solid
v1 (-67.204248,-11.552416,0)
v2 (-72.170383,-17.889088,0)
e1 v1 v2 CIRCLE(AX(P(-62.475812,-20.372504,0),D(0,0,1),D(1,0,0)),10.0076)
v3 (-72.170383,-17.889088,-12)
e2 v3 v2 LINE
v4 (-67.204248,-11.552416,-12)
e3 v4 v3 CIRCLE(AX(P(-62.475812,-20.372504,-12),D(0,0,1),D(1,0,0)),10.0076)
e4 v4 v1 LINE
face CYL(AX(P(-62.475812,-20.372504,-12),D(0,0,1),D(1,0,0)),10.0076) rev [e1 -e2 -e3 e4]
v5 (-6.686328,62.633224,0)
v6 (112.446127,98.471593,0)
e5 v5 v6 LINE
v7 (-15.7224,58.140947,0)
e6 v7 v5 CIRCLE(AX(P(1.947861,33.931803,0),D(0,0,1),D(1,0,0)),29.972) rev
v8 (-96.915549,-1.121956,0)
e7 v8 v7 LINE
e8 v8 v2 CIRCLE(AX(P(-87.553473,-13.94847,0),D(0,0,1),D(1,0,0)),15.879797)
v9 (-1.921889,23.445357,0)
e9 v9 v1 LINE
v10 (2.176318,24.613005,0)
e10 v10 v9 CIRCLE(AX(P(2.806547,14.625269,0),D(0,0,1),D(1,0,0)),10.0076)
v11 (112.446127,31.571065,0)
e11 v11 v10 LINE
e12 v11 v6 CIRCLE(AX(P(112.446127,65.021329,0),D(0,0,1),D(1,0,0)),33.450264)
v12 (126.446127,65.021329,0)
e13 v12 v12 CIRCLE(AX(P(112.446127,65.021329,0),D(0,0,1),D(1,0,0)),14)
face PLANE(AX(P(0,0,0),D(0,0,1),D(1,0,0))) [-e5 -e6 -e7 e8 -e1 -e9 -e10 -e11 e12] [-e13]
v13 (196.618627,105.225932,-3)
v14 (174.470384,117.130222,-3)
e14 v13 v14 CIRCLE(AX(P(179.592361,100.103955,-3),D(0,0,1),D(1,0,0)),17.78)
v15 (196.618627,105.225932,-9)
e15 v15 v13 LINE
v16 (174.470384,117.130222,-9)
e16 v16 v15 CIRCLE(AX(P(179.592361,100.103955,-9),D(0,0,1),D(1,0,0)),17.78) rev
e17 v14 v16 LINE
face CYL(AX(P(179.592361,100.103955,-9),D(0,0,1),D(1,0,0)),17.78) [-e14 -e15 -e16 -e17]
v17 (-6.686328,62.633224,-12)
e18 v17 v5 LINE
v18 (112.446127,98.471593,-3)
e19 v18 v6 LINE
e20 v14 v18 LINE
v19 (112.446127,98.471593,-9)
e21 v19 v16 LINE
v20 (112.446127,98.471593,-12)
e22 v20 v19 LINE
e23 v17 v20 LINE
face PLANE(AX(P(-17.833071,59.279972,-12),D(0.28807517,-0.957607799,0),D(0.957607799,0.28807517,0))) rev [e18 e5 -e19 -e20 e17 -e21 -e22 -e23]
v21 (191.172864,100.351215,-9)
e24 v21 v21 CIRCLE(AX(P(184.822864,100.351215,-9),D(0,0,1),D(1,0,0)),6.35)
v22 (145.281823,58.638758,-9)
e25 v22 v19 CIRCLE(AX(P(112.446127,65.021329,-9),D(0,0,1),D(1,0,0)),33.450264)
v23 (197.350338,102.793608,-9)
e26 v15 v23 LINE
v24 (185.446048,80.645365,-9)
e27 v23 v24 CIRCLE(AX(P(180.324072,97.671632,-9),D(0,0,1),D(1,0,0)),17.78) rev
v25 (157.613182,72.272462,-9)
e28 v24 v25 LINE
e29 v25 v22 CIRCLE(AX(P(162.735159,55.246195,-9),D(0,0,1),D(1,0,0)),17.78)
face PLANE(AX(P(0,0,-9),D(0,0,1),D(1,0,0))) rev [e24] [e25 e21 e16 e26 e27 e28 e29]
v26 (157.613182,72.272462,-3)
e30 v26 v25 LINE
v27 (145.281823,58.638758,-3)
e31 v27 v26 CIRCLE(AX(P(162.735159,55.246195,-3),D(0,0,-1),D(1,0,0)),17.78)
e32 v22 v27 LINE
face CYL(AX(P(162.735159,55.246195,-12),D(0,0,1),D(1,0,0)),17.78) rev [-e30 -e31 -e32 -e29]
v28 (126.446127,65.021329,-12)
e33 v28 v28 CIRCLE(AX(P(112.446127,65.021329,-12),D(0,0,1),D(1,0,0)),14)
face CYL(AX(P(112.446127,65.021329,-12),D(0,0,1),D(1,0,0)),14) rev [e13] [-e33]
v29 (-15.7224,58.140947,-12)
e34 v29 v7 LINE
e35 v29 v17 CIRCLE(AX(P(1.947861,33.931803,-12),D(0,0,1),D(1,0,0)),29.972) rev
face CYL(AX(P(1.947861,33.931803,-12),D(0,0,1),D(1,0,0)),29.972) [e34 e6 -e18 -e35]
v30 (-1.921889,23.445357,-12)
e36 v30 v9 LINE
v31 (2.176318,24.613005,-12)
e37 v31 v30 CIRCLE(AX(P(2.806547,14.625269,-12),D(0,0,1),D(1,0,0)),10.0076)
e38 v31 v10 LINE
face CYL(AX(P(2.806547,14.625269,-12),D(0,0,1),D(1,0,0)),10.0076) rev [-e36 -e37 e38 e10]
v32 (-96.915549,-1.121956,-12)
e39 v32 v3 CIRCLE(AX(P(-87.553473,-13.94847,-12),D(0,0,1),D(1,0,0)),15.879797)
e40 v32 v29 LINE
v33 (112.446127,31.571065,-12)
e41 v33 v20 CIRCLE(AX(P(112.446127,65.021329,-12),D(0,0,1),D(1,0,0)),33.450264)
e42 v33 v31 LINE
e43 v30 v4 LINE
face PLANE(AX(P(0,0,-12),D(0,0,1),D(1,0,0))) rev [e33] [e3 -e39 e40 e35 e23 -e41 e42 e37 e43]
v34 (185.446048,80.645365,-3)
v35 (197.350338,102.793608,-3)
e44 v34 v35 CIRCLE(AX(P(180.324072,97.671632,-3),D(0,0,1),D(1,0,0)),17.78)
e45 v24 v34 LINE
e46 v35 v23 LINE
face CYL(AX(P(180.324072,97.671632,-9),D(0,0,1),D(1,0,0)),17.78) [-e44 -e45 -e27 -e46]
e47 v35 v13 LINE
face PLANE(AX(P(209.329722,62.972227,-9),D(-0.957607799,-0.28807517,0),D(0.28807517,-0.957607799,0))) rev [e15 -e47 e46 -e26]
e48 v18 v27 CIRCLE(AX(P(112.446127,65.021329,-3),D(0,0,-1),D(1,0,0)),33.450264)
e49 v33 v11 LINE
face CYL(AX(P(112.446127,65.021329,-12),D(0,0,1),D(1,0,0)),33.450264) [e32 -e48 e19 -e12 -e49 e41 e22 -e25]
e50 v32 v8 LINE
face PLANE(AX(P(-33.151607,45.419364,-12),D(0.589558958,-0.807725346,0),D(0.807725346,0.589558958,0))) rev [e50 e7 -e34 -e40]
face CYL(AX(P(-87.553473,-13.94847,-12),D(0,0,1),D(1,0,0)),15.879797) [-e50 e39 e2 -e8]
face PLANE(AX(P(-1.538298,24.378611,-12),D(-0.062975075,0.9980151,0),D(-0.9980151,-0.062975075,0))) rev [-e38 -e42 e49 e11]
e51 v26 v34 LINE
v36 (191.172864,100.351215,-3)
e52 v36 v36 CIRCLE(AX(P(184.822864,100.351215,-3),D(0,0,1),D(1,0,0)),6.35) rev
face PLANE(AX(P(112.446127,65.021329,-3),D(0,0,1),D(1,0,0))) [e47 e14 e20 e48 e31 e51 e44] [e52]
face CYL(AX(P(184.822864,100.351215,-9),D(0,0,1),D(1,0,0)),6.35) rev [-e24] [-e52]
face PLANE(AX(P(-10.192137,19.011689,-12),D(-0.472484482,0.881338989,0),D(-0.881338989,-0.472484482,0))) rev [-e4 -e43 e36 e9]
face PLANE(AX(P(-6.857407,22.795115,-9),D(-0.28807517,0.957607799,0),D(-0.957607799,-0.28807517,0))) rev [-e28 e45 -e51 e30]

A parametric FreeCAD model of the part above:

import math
import FreeCAD as App
import Part
import Sketcher
Q = App.Units.Quantity


def edges_at(feature, points):
    """Names of the edges that pass closest to the given points."""
    edges = feature.Shape.Edges
    near = lambda p: min(range(len(edges)), key=lambda i: edges[i].distToShape(Part.Vertex(*p))[0])
    return sorted({f"Edge{near(p) + 1}" for p in points})

doc = App.newDocument("Part")
body = doc.addObject("PartDesign::Body", "Body")

# Sketch on XY plane
sketch1 = body.newObject("Sketcher::SketchObject", "Sketch")
sketch1.AttachmentSupport = (doc.getObject("XY_Plane"), [""])
sketch1.MapMode = "FlatFace"
sketch1.addGeometry([
    Part.LineSegment(App.Vector(-15.7, 58.1, 0), App.Vector(-96.9, -1.1, 0)),  # 0
    Part.ArcOfCircle(Part.Circle(App.Vector(-87.6, -13.9, 0), App.Vector(0, 0, 1), 15.9), math.radians(126), math.radians(346)),  # 1
    Part.ArcOfCircle(Part.Circle(App.Vector(-62.5, -20.4, 0), App.Vector(0, 0, 1), 10), math.radians(118), math.radians(166)),  # 2
    Part.LineSegment(App.Vector(-67.2, -11.6, 0), App.Vector(-1.9, 23.4, 0)),  # 3
    Part.ArcOfCircle(Part.Circle(App.Vector(2.8, 14.6, 0), App.Vector(0, 0, 1), 10), math.radians(94), math.radians(118)),  # 4
    Part.LineSegment(App.Vector(2.2, 24.6, 0), App.Vector(112.4, 31.6, 0)),  # 5
    Part.ArcOfCircle(Part.Circle(App.Vector(112.4, 65, 0), App.Vector(0, 0, 1), 33.5), math.radians(-90), math.radians(90)),  # 6
    Part.LineSegment(App.Vector(112.4, 98.5, 0), App.Vector(-6.7, 62.6, 0)),  # 7
    Part.ArcOfCircle(Part.Circle(App.Vector(1.9, 33.9, 0), App.Vector(0, 0, 1), 30), math.radians(106.74), math.radians(126.13)),  # 8
    Part.Circle(App.Vector(112.4, 65, 0), App.Vector(0, 0, 1), 14),  # 9
], False)
sketch1.addConstraint([
    Sketcher.Constraint("Tangent", 0, 2, 1, 1),
    Sketcher.Constraint("Tangent", 1, 2, 2, 2),
    Sketcher.Constraint("Tangent", 2, 1, 3, 1),
    Sketcher.Constraint("Tangent", 3, 2, 4, 2),
    Sketcher.Constraint("Tangent", 4, 1, 5, 1),
    Sketcher.Constraint("Coincident", 5, 2, 6, 1),
    Sketcher.Constraint("Coincident", 6, 2, 7, 1),
    Sketcher.Constraint("Tangent", 7, 2, 8, 1),
    Sketcher.Constraint("Tangent", 8, 2, 0, 1),
    Sketcher.Constraint("Coincident", 9, 3, 6, 3),
    Sketcher.Constraint("Equal", 2, 4),
    Sketcher.Constraint("Vertical", 9, 3, 5, 2),
    Sketcher.Constraint("Vertical", 5, 2, 6, 2),
    Sketcher.Constraint("Radius", 8, Q("1.18 in")),
    Sketcher.Constraint("Radius", 2, Q("0.394 in")),
    Sketcher.Constraint("Diameter", 9, Q("28 mm")),
    Sketcher.Constraint("DistanceX", 1, 3, 6, 3, Q("7.874 in")),
    Sketcher.Constraint("Radius", 1, Q("15.879797 mm")),
    Sketcher.Constraint("Radius", 6, Q("33.450264 mm")),
    Sketcher.Constraint("DistanceX", 8, 2, -1, 1, Q("15.7224 mm")),
    Sketcher.Constraint("DistanceY", 1, 3, 6, 3, Q("78.969799 mm")),
    Sketcher.Constraint("DistanceX", 0, 2, 2, 1, Q("29.711302 mm")),
    Sketcher.Constraint("DistanceY", 4, 1, 8, 3, Q("9.318798 mm")),
    Sketcher.Constraint("Distance", 0, Q("100.52074 mm")),
    Sketcher.Constraint("Distance", 5, Q("110.489119 mm")),
    Sketcher.Constraint("DistanceY", 1, 3, -1, 1, Q("13.94847 mm")),
    Sketcher.Constraint("DistanceX", 2, 3, -1, 1, Q("62.475812 mm")),
])
pad1 = body.newObject("PartDesign::Pad", "Pad")
pad1.Profile = sketch1
pad1.Length = 12
pad1.Reversed = True

# Sketch on XY plane
sketch2 = body.newObject("Sketcher::SketchObject", "Sketch001")
sketch2.AttachmentSupport = (doc.getObject("XY_Plane"), [""])
sketch2.MapMode = "FlatFace"
sketch2.addGeometry([
    Part.LineSegment(App.Vector(179, 119, 0), App.Vector(112, 98, 0)),  # 0
    Part.ArcOfCircle(Part.Circle(App.Vector(112, 65, 0), App.Vector(0, 0, 1), 33), math.radians(6), math.radians(90)),  # 1
    Part.LineSegment(App.Vector(146, 69, 0), App.Vector(190, 82, 0)),  # 2
    Part.LineSegment(App.Vector(190, 82, 0), App.Vector(202, 86, 0)),  # 3
    Part.LineSegment(App.Vector(202, 86, 0), App.Vector(191, 122, 0)),  # 4
    Part.LineSegment(App.Vector(191, 122, 0), App.Vector(179, 119, 0)),  # 5
    Part.ArcOfCircle(Part.Circle(App.Vector(185, 100, 0), App.Vector(0, 0, 1), 6), math.radians(107), math.radians(287)),  # 6
    Part.ArcOfCircle(Part.Circle(App.Vector(185, 100, 0), App.Vector(0, 0, 1), 6), math.radians(0), math.radians(107)),  # 7
    Part.ArcOfCircle(Part.Circle(App.Vector(185, 100, 0), App.Vector(0, 0, 1), 6), math.radians(-73), math.radians(0)),  # 8
], False)
sketch2.addConstraint([
    Sketcher.Constraint("Coincident", 0, 2, 1, 2),
    Sketcher.Constraint("Coincident", 1, 1, 2, 1),
    Sketcher.Constraint("Coincident", 2, 2, 3, 1),
    Sketcher.Constraint("Coincident", 3, 2, 4, 1),
    Sketcher.Constraint("Coincident", 4, 2, 5, 1),
    Sketcher.Constraint("Coincident", 5, 2, 0, 1),
    Sketcher.Constraint("Tangent", 6, 1, 7, 2),
    Sketcher.Constraint("Tangent", 7, 1, 8, 2),
    Sketcher.Constraint("Tangent", 8, 1, 6, 2),
    Sketcher.Constraint("Parallel", 0, 2),
    Sketcher.Constraint("Parallel", 2, 3),
    Sketcher.Constraint("Perpendicular", 3, 4),
    Sketcher.Constraint("Perpendicular", 4, 5),
    Sketcher.Constraint("Horizontal", 8, 3, 7, 1),
    Sketcher.Constraint("Vertical", 1, 3, 0, 2),
    Sketcher.Constraint("Equal", 3, 5),
    Sketcher.Constraint("Radius", 6, Q("0.25 in")),
    Sketcher.Constraint("Distance", 3, Q("0.5 in")),
    Sketcher.Constraint("Distance", 4, Q("1.5 in")),
    Sketcher.Constraint("Distance", 0, Q("2.75 in")),
    Sketcher.Constraint("Radius", 1, Q("33.450264 mm")),
    Sketcher.Constraint("DistanceY", -1, 1, 4, 2, Q("122.252199 mm")),
    Sketcher.Constraint("DistanceY", 1, 1, 6, 3, Q("31.6641 mm")),
    Sketcher.Constraint("DistanceY", -1, 1, 1, 3, Q("65.021329 mm")),
    Sketcher.Constraint("DistanceX", -1, 1, 1, 1, Q("145.694919 mm")),
    Sketcher.Constraint("DistanceX", -1, 1, 8, 1, Q("186.652141 mm")),
    Sketcher.Constraint("DistanceX", 8, 3, 2, 2, Q("5.487832 mm")),
    Sketcher.Constraint("DistanceY", 6, 3, 6, 1, Q("6.08081 mm")),
])
pad2 = body.newObject("PartDesign::Pad", "Pad001")
pad2.Profile = sketch2
pad2.Length = 9
pad2.Reversed = True
doc.recompute()

fillet = body.newObject("PartDesign::Fillet", "Fillet")
fillet.Base = (pad2, edges_at(pad2, [(191.497, 122.252, -4.5), (202.472, 85.767, -4.5), (145.695, 68.687, -4.5)]))
fillet.Radius = Q("0.7 in")

# Sketch on XY plane
sketch3 = body.newObject("Sketcher::SketchObject", "Sketch002")
sketch3.AttachmentSupport = (doc.getObject("XY_Plane"), [""])
sketch3.MapMode = "FlatFace"
sketch3.AttachmentOffset = App.Placement(App.Vector(0, 0, -3), App.Rotation())
sketch3.addGeometry([
    Part.LineSegment(App.Vector(174.5, 117.1, 0), App.Vector(112.4, 98.5, 0)),  # 0
    Part.ArcOfCircle(Part.Circle(App.Vector(112.4, 65, 0), App.Vector(0, 0, 1), 33.5), math.radians(-11), math.radians(90)),  # 1
    Part.ArcOfCircle(Part.Circle(App.Vector(162.7, 55.2, 0), App.Vector(0, 0, 1), 17.8), math.radians(107), math.radians(169)),  # 2
    Part.LineSegment(App.Vector(157.6, 72.3, 0), App.Vector(185.4, 80.6, 0)),  # 3
    Part.ArcOfCircle(Part.Circle(App.Vector(180.3, 97.7, 0), App.Vector(0, 0, 1), 17.8), math.radians(-73), math.radians(17)),  # 4
    Part.LineSegment(App.Vector(197.4, 102.8, 0), App.Vector(196.6, 105.2, 0)),  # 5
    Part.ArcOfCircle(Part.Circle(App.Vector(179.6, 100.1, 0), App.Vector(0, 0, 1), 17.8), math.radians(17), math.radians(107)),  # 6
], False)
sketch3.addConstraint([
    Sketcher.Constraint("Coincident", 0, 2, 1, 2),
    Sketcher.Constraint("Tangent", 1, 1, 2, 2),
    Sketcher.Constraint("Tangent", 2, 1, 3, 1),
    Sketcher.Constraint("Tangent", 3, 2, 4, 1),
    Sketcher.Constraint("Tangent", 4, 2, 5, 1),
    Sketcher.Constraint("Tangent", 5, 2, 6, 1),
    Sketcher.Constraint("Tangent", 6, 2, 0, 1),
    Sketcher.Constraint("Equal", 2, 4),
    Sketcher.Constraint("Equal", 4, 6),
    Sketcher.Constraint("Parallel", 0, 3),
    Sketcher.Constraint("Perpendicular", 3, 5),
    Sketcher.Constraint("Vertical", 1, 3, 0, 2),
    Sketcher.Constraint("Radius", 2, Q("0.7 in")),
    Sketcher.Constraint("Distance", 5, Q("0.1 in")),
    Sketcher.Constraint("Distance", 0, Q("2.55 in")),
    Sketcher.Constraint("Radius", 1, Q("33.450264 mm")),
    Sketcher.Constraint("DistanceX", 2, 3, 6, 3, Q("16.857202 mm")),
    Sketcher.Constraint("DistanceY", -1, 1, 1, 3, Q("65.021329 mm")),
    Sketcher.Constraint("DistanceX", -1, 1, 2, 3, Q("162.735159 mm")),
])
pocket1 = body.newObject("PartDesign::Pocket", "Pocket")
pocket1.Profile = sketch3
pocket1.Length = 3
pocket1.Reversed = True

doc.recompute()
